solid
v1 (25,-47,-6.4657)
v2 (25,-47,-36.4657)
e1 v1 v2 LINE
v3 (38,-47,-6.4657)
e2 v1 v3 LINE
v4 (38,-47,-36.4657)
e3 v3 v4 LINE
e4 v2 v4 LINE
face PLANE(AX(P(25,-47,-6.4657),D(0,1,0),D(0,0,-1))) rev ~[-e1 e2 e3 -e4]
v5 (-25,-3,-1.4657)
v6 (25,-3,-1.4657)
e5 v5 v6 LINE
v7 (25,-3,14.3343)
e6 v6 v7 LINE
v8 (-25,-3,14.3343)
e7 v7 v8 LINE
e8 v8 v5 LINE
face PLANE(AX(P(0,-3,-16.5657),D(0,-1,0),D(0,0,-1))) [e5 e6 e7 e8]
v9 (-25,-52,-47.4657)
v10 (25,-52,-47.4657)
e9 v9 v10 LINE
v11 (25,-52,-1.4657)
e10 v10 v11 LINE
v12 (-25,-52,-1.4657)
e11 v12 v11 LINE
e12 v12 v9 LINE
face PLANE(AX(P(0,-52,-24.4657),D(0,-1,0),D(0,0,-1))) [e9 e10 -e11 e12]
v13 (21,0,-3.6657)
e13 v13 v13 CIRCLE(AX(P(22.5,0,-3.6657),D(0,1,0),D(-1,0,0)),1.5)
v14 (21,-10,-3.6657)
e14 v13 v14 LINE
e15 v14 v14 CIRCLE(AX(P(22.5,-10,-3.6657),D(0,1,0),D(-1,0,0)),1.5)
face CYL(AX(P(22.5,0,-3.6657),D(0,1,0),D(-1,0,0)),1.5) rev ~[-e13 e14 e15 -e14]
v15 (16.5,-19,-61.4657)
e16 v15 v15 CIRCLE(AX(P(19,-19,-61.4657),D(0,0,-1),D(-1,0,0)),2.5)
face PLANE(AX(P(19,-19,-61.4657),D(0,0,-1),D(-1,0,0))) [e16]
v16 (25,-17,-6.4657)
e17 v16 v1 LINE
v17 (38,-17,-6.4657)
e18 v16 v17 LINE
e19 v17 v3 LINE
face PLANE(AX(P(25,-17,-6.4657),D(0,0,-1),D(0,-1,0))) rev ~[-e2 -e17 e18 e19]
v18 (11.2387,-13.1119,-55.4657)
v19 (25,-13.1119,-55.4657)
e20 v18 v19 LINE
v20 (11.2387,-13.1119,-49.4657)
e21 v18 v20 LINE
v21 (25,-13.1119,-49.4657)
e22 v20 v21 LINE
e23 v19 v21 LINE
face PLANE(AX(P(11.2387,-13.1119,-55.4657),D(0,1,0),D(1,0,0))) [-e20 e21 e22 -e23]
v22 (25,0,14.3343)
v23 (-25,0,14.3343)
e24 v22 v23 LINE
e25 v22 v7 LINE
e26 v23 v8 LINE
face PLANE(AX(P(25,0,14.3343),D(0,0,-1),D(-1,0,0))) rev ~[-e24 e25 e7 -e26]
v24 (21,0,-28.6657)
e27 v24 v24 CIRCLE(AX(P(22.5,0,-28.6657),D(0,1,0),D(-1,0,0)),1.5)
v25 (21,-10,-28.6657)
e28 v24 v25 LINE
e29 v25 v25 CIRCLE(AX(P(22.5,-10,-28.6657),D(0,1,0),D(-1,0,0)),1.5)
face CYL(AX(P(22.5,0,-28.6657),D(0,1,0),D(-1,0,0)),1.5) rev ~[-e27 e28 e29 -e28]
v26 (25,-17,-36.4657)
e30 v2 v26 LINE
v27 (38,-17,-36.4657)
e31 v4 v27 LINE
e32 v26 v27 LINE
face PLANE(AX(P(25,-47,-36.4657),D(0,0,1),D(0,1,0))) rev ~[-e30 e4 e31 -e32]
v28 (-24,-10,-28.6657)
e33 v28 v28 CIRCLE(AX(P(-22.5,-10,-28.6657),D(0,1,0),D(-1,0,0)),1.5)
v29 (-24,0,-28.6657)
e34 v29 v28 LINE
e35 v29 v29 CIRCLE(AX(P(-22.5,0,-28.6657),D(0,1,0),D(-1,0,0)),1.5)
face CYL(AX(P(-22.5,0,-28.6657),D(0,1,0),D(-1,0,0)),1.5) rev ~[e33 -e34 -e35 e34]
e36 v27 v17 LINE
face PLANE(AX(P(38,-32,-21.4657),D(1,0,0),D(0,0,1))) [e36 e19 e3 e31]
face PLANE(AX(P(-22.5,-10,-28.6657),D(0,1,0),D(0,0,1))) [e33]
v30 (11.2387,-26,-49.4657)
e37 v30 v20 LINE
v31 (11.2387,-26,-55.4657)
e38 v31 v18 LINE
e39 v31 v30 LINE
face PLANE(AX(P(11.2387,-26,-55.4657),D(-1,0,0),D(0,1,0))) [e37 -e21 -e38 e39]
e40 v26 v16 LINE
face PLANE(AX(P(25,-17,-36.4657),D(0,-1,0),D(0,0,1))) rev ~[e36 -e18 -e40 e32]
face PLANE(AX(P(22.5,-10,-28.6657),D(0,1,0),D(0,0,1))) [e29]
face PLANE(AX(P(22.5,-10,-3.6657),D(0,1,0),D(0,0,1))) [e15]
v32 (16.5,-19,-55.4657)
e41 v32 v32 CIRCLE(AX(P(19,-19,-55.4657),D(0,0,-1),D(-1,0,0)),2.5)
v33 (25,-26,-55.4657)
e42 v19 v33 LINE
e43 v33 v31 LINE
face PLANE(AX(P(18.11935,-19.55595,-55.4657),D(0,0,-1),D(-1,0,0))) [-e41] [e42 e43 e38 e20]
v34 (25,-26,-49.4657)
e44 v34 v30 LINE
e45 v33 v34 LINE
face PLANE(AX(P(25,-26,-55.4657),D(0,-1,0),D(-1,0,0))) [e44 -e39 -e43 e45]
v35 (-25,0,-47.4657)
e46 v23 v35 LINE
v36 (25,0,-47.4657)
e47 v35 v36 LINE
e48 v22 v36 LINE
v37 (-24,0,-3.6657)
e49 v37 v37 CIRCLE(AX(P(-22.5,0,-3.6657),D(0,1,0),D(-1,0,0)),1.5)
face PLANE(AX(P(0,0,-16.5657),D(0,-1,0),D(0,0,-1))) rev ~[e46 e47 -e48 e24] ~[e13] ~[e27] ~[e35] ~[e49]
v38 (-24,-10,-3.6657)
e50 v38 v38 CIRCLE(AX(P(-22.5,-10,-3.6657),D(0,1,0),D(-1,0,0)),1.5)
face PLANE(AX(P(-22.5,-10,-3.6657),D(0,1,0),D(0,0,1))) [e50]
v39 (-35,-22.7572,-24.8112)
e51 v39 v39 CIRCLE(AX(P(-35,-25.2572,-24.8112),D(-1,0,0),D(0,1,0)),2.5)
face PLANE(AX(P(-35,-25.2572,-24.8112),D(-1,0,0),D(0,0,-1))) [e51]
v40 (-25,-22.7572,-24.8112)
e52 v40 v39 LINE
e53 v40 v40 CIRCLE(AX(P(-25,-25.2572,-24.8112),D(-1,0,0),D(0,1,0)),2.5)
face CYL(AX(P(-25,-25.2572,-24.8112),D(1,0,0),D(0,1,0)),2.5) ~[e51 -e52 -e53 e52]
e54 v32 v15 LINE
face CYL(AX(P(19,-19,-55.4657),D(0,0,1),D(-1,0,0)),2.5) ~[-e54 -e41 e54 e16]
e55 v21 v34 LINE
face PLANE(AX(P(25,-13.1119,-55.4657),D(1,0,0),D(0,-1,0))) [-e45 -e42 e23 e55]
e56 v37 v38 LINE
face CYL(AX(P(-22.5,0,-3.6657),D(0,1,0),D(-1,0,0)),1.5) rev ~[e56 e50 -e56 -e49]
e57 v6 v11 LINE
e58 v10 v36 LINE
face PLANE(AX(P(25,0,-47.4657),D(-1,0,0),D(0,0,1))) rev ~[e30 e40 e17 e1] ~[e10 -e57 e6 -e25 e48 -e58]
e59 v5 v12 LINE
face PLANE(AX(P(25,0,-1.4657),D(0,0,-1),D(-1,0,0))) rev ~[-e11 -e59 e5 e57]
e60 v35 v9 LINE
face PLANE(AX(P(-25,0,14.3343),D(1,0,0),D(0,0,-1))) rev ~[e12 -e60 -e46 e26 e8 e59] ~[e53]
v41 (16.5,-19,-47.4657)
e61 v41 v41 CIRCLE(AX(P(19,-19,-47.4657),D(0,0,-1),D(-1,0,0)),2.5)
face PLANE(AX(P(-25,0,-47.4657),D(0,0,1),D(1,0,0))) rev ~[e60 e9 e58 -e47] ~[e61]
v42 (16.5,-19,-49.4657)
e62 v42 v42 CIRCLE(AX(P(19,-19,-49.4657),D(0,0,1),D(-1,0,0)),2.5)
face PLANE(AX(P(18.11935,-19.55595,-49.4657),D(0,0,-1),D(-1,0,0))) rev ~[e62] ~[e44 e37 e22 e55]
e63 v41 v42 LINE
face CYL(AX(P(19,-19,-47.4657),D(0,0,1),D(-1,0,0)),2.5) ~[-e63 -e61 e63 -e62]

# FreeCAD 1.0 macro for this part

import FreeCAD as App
import Part
import Sketcher

V = App.Vector

doc = App.newDocument("Part")
params = doc.addObject("Spreadsheet::Sheet", "Params")
for row, (alias, value) in enumerate([
    ("sketch1_height", "61.8 mm"),
    ("pad1_length", "3 mm"),
    ("sketch2_width", "50 mm"),
    ("sketch2_height", "46 mm"),
    ("pad2_length", "52 mm"),
    ("sketch3_width", "30 mm"),
    ("pad3_length", "13 mm"),
    ("sketch4_diameter", "5 mm"),
    ("pad4_length", "10 mm"),
    ("sketch5_diameter", "3 mm"),
    ("pocket1_length", "10 mm"),
    ("sketch6_diameter", "5 mm"),
    ("pad5_length", "8 mm"),
    ("pad6_length", "6 mm"),
    ("sketch8_diameter", "5 mm"),
    ("pad7_length", "6 mm"),
], start=1):
    params.set(f"A{row}", alias)
    params.set(f"B{row}", "=" + value)
    params.setAlias(f"B{row}", alias)

body = doc.addObject("PartDesign::Body", "Body")

# Sketch on XZ plane
sketch1 = body.newObject("Sketcher::SketchObject", "Sketch")
sketch1.AttachmentSupport = (doc.getObject("XZ_Plane"), [""])
sketch1.MapMode = "FlatFace"
sketch1.addGeometry([
    Part.LineSegment(V(25, 14.3343, 0), V(-25, 14.3343, 0)),
    Part.LineSegment(V(-25, 14.3343, 0), V(-25, -47.4657, 0)),
    Part.LineSegment(V(-25, -47.4657, 0), V(25, -47.4657, 0)),
    Part.LineSegment(V(25, -47.4657, 0), V(25, 14.3343, 0)),
], False)
sketch1.addConstraint([
    Sketcher.Constraint("Coincident", 0, 2, 1, 1),
    Sketcher.Constraint("Coincident", 1, 2, 2, 1),
    Sketcher.Constraint("Coincident", 2, 2, 3, 1),
    Sketcher.Constraint("Coincident", 3, 2, 0, 1),
    Sketcher.Constraint("Horizontal", 0),
    Sketcher.Constraint("Vertical", 1),
    Sketcher.Constraint("Horizontal", 2),
    Sketcher.Constraint("Vertical", 3),
    Sketcher.Constraint("DistanceX", 0, 2, -1, 1, 25.0),
    Sketcher.Constraint("DistanceX", -1, 1, 2, 2, 25.0),
    Sketcher.Constraint("DistanceY", 1, 2, 1, 1, 61.8),
    Sketcher.Constraint("DistanceY", -1, 1, 0, 2, 14.3343),
])
sketch1.setExpression("Constraints[10]", "Params.sketch1_height")
pad1 = body.newObject("PartDesign::Pad", "Pad")
pad1.Profile = sketch1
pad1.setExpression("Length", "Params.pad1_length")

# Sketch on XZ plane
sketch2 = body.newObject("Sketcher::SketchObject", "Sketch001")
sketch2.AttachmentSupport = (doc.getObject("XZ_Plane"), [""])
sketch2.MapMode = "FlatFace"
sketch2.addGeometry([
    Part.LineSegment(V(25, -1.4657, 0), V(-25, -1.4657, 0)),
    Part.LineSegment(V(-25, -1.4657, 0), V(-25, -47.4657, 0)),
    Part.LineSegment(V(-25, -47.4657, 0), V(25, -47.4657, 0)),
    Part.LineSegment(V(25, -47.4657, 0), V(25, -1.4657, 0)),
], False)
sketch2.addConstraint([
    Sketcher.Constraint("Coincident", 0, 2, 1, 1),
    Sketcher.Constraint("Coincident", 1, 2, 2, 1),
    Sketcher.Constraint("Coincident", 2, 2, 3, 1),
    Sketcher.Constraint("Coincident", 3, 2, 0, 1),
    Sketcher.Constraint("Horizontal", 0),
    Sketcher.Constraint("Vertical", 1),
    Sketcher.Constraint("Horizontal", 2),
    Sketcher.Constraint("Vertical", 3),
    Sketcher.Constraint("DistanceX", 0, 2, 0, 1, 50.0),
    Sketcher.Constraint("DistanceY", 1, 2, 1, 1, 46.0),
    Sketcher.Constraint("DistanceX", 0, 2, -1, 1, 25.0),
    Sketcher.Constraint("DistanceY", 0, 2, -1, 1, 1.4657),
])
sketch2.setExpression("Constraints[8]", "Params.sketch2_width")
sketch2.setExpression("Constraints[9]", "Params.sketch2_height")
pad2 = body.newObject("PartDesign::Pad", "Pad001")
pad2.Profile = sketch2
pad2.setExpression("Length", "Params.pad2_length")

# Sketch on YZ plane
sketch3 = body.newObject("Sketcher::SketchObject", "Sketch002")
sketch3.AttachmentSupport = (doc.getObject("YZ_Plane"), [""])
sketch3.MapMode = "FlatFace"
sketch3.AttachmentOffset = App.Placement(V(0, 0, 25), App.Rotation())
sketch3.addGeometry([
    Part.LineSegment(V(-47, -6.4657, 0), V(-47, -36.4657, 0)),
    Part.LineSegment(V(-47, -36.4657, 0), V(-17, -36.4657, 0)),
    Part.LineSegment(V(-17, -36.4657, 0), V(-17, -6.4657, 0)),
    Part.LineSegment(V(-17, -6.4657, 0), V(-47, -6.4657, 0)),
], False)
sketch3.addConstraint([
    Sketcher.Constraint("Coincident", 0, 2, 1, 1),
    Sketcher.Constraint("Coincident", 1, 2, 2, 1),
    Sketcher.Constraint("Coincident", 2, 2, 3, 1),
    Sketcher.Constraint("Coincident", 3, 2, 0, 1),
    Sketcher.Constraint("Vertical", 0),
    Sketcher.Constraint("Horizontal", 1),
    Sketcher.Constraint("Vertical", 2),
    Sketcher.Constraint("Horizontal", 3),
    Sketcher.Constraint("Equal", 3, 0),
    Sketcher.Constraint("DistanceX", 1, 1, 1, 2, 30.0),
    Sketcher.Constraint("DistanceX", 0, 2, -1, 1, 47.0),
    Sketcher.Constraint("DistanceY", 0, 2, -1, 1, 36.4657),
])
sketch3.setExpression("Constraints[9]", "Params.sketch3_width")
pad3 = body.newObject("PartDesign::Pad", "Pad002")
pad3.Profile = sketch3
pad3.setExpression("Length", "Params.pad3_length")

# Sketch on YZ plane
sketch4 = body.newObject("Sketcher::SketchObject", "Sketch003")
sketch4.AttachmentSupport = (doc.getObject("YZ_Plane"), [""])
sketch4.MapMode = "FlatFace"
sketch4.AttachmentOffset = App.Placement(V(0, 0, -25), App.Rotation())
sketch4.addGeometry(Part.Circle(V(-25.2572, -24.8112, 0), V(0, 0, 1), 2.5), False)
sketch4.addConstraint([
    Sketcher.Constraint("Diameter", 0, 5.0),
    Sketcher.Constraint("DistanceX", 0, 3, -1, 1, 25.2572),
    Sketcher.Constraint("DistanceY", 0, 3, -1, 1, 24.8112),
])
sketch4.setExpression("Constraints[0]", "Params.sketch4_diameter")
pad4 = body.newObject("PartDesign::Pad", "Pad003")
pad4.Profile = sketch4
pad4.setExpression("Length", "Params.pad4_length")
pad4.Reversed = True

# Sketch on XZ plane
sketch5 = body.newObject("Sketcher::SketchObject", "Sketch004")
sketch5.AttachmentSupport = (doc.getObject("XZ_Plane"), [""])
sketch5.MapMode = "FlatFace"
sketch5.addGeometry([
    Part.Circle(V(-22.5, -3.6657, 0), V(0, 0, 1), 1.5),
    Part.Circle(V(22.5, -28.6657, 0), V(0, 0, 1), 1.5),
    Part.Circle(V(-22.5, -28.6657, 0), V(0, 0, 1), 1.5),
    Part.Circle(V(22.5, -3.6657, 0), V(0, 0, 1), 1.5),
], False)
sketch5.addConstraint([
    Sketcher.Constraint("Equal", 0, 1),
    Sketcher.Constraint("Equal", 1, 2),
    Sketcher.Constraint("Equal", 2, 3),
    Sketcher.Constraint("Symmetric", 1, 3, 2, 3, -2),
    Sketcher.Constraint("Symmetric", 0, 3, 3, 3, -2),
    Sketcher.Constraint("Vertical", 0, 3, 2, 3),
    Sketcher.Constraint("Diameter", 0, 3.0),
    Sketcher.Constraint("DistanceX", 0, 3, 1, 3, 45.0),
    Sketcher.Constraint("DistanceY", 1, 3, 0, 3, 25.0),
    Sketcher.Constraint("DistanceY", 0, 3, -1, 1, 3.6657),
])
sketch5.setExpression("Constraints[6]", "Params.sketch5_diameter")
pocket1 = body.newObject("PartDesign::Pocket", "Pocket")
pocket1.Profile = sketch5
pocket1.setExpression("Length", "Params.pocket1_length")
pocket1.Reversed = True

# Sketch on XY plane
sketch6 = body.newObject("Sketcher::SketchObject", "Sketch005")
sketch6.AttachmentSupport = (doc.getObject("XY_Plane"), [""])
sketch6.MapMode = "FlatFace"
sketch6.AttachmentOffset = App.Placement(V(0, 0, -47.4657), App.Rotation())
sketch6.addGeometry(Part.Circle(V(19, -19, 0), V(0, 0, 1), 2.5), False)
sketch6.addConstraint([
    Sketcher.Constraint("Diameter", 0, 5.0),
    Sketcher.Constraint("DistanceX", -1, 1, 0, 3, 19.0),
    Sketcher.Constraint("DistanceY", 0, 3, -1, 1, 19.0),
])
sketch6.setExpression("Constraints[0]", "Params.sketch6_diameter")
pad5 = body.newObject("PartDesign::Pad", "Pad004")
pad5.Profile = sketch6
pad5.setExpression("Length", "Params.pad5_length")
pad5.Reversed = True

# Sketch on XY plane
sketch7 = body.newObject("Sketcher::SketchObject", "Sketch006")
sketch7.AttachmentSupport = (doc.getObject("XY_Plane"), [""])
sketch7.MapMode = "FlatFace"
sketch7.AttachmentOffset = App.Placement(V(0, 0, -55.4657), App.Rotation())
sketch7.addGeometry([
    Part.LineSegment(V(11.2387, -13.1119, 0), V(25, -13.1119, 0)),
    Part.LineSegment(V(25, -13.1119, 0), V(25, -26, 0)),
    Part.LineSegment(V(25, -26, 0), V(11.2387, -26, 0)),
    Part.LineSegment(V(11.2387, -26, 0), V(11.2387, -13.1119, 0)),
], False)
sketch7.addConstraint([
    Sketcher.Constraint("Coincident", 0, 2, 1, 1),
    Sketcher.Constraint("Coincident", 1, 2, 2, 1),
    Sketcher.Constraint("Coincident", 2, 2, 3, 1),
    Sketcher.Constraint("Coincident", 3, 2, 0, 1),
    Sketcher.Constraint("Horizontal", 0),
    Sketcher.Constraint("Vertical", 1),
    Sketcher.Constraint("Horizontal", 2),
    Sketcher.Constraint("Vertical", 3),
    Sketcher.Constraint("DistanceX", -1, 1, 0, 2, 25.0),
    Sketcher.Constraint("DistanceY", 1, 2, -1, 1, 26.0),
    Sketcher.Constraint("DistanceY", 1, 2, 1, 1, 12.888),
    Sketcher.Constraint("DistanceX", 0, 1, 0, 2, 13.7613),
])
pad6 = body.newObject("PartDesign::Pad", "Pad005")
pad6.Profile = sketch7
pad6.setExpression("Length", "Params.pad6_length")

# Sketch on XY plane
sketch8 = body.newObject("Sketcher::SketchObject", "Sketch007")
sketch8.AttachmentSupport = (doc.getObject("XY_Plane"), [""])
sketch8.MapMode = "FlatFace"
sketch8.AttachmentOffset = App.Placement(V(0, 0, -55.4657), App.Rotation())
sketch8.addGeometry(Part.Circle(V(19, -19, 0), V(0, 0, 1), 2.5), False)
sketch8.addConstraint([
    Sketcher.Constraint("Diameter", 0, 5.0),
    Sketcher.Constraint("DistanceX", -1, 1, 0, 3, 19.0),
    Sketcher.Constraint("DistanceY", 0, 3, -1, 1, 19.0),
])
sketch8.setExpression("Constraints[0]", "Params.sketch8_diameter")
pad7 = body.newObject("PartDesign::Pad", "Pad006")
pad7.Profile = sketch8
pad7.setExpression("Length", "Params.pad7_length")
pad7.Reversed = True

doc.recompute()
